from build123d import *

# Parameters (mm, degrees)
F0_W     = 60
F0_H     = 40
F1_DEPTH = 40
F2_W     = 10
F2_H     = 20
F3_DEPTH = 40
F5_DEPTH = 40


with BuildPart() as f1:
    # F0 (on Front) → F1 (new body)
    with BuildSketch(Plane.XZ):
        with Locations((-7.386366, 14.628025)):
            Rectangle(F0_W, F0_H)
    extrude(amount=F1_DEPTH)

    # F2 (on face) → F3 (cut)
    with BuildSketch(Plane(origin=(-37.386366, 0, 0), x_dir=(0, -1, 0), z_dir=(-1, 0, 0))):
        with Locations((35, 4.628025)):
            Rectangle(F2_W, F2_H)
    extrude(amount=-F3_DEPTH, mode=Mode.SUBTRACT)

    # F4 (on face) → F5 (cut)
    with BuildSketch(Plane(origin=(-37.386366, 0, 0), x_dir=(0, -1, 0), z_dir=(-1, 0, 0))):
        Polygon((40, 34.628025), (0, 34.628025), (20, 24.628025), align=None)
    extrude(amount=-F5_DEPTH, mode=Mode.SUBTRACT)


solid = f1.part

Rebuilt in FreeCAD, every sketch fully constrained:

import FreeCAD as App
import Part
import Sketcher

V = App.Vector

doc = App.newDocument("Part")
body = doc.addObject("PartDesign::Body", "Body")

sketch1 = doc.addObject("Sketcher::SketchObject", "Sketch")
body.addObject(sketch1)
sketch1.AttachmentSupport = (doc.XZ_Plane, [""])
sketch1.MapMode = "FlatFace"
sketch1.addGeometry([
    Part.LineSegment(V(-37, 35, 0), V(-37, -5, 0)),
    Part.LineSegment(V(-37, -5, 0), V(23, -5, 0)),
    Part.LineSegment(V(23, -5, 0), V(23, 35, 0)),
    Part.LineSegment(V(23, 35, 0), V(-37, 35, 0)),
], False)
sketch1.addConstraint([
    Sketcher.Constraint("Coincident", 0, 2, 1, 1),
    Sketcher.Constraint("Coincident", 1, 2, 2, 1),
    Sketcher.Constraint("Coincident", 2, 2, 3, 1),
    Sketcher.Constraint("Coincident", 3, 2, 0, 1),
    Sketcher.Constraint("Vertical", 0),
    Sketcher.Constraint("Horizontal", 1),
    Sketcher.Constraint("Vertical", 2),
    Sketcher.Constraint("Horizontal", 3),
    Sketcher.Constraint("DistanceX", 1, 1, 1, 2, 60.0),
    Sketcher.Constraint("DistanceY", 0, 2, 0, 1, 40.0),
    Sketcher.Constraint("DistanceX", 0, 2, -1, 1, 37.386366),
    Sketcher.Constraint("DistanceY", 0, 2, -1, 1, 5.371975),
])
pad1 = doc.addObject("PartDesign::Pad", "Pad")
body.addObject(pad1)
pad1.Profile = sketch1
pad1.Length = 40

sketch2 = doc.addObject("Sketcher::SketchObject", "Sketch001")
body.addObject(sketch2)
sketch2.AttachmentSupport = (doc.YZ_Plane, [""])
sketch2.MapMode = "FlatFace"
sketch2.AttachmentOffset = App.Placement(V(0, 0, -37.386366), App.Rotation())
sketch2.addGeometry([
    Part.LineSegment(V(-30, 15, 0), V(-30, -5, 0)),
    Part.LineSegment(V(-30, -5, 0), V(-40, -5, 0)),
    Part.LineSegment(V(-40, -5, 0), V(-40, 15, 0)),
    Part.LineSegment(V(-40, 15, 0), V(-30, 15, 0)),
], False)
sketch2.addConstraint([
    Sketcher.Constraint("Coincident", 0, 2, 1, 1),
    Sketcher.Constraint("Coincident", 1, 2, 2, 1),
    Sketcher.Constraint("Coincident", 2, 2, 3, 1),
    Sketcher.Constraint("Coincident", 3, 2, 0, 1),
    Sketcher.Constraint("Vertical", 0),
    Sketcher.Constraint("Horizontal", 1),
    Sketcher.Constraint("Vertical", 2),
    Sketcher.Constraint("Horizontal", 3),
    Sketcher.Constraint("DistanceX", 1, 2, 1, 1, 10.0),
    Sketcher.Constraint("DistanceY", 0, 2, 0, 1, 20.0),
    Sketcher.Constraint("DistanceX", 0, 2, -1, 1, 30.0),
    Sketcher.Constraint("DistanceY", 0, 2, -1, 1, 5.371975),
])
pocket1 = doc.addObject("PartDesign::Pocket", "Pocket")
body.addObject(pocket1)
pocket1.Profile = sketch2
pocket1.Length = 40
pocket1.Reversed = True

sketch3 = doc.addObject("Sketcher::SketchObject", "Sketch002")
body.addObject(sketch3)
sketch3.AttachmentSupport = (doc.YZ_Plane, [""])
sketch3.MapMode = "FlatFace"
sketch3.AttachmentOffset = App.Placement(V(0, 0, -37.386366), App.Rotation())
sketch3.addGeometry([
    Part.LineSegment(V(-40, 35, 0), V(0, 35, 0)),
    Part.LineSegment(V(0, 35, 0), V(-20, 25, 0)),
    Part.LineSegment(V(-20, 25, 0), V(-40, 35, 0)),
], False)
sketch3.addConstraint([
    Sketcher.Constraint("Coincident", 0, 2, 1, 1),
    Sketcher.Constraint("Coincident", 1, 2, 2, 1),
    Sketcher.Constraint("Coincident", 2, 2, 0, 1),
    Sketcher.Constraint("Horizontal", 0),
    Sketcher.Constraint("PointOnObject", 0, 2, -2),
    Sketcher.Constraint("Equal", 1, 2),
    Sketcher.Constraint("DistanceX", 0, 1, 0, 2, 40.0),
    Sketcher.Constraint("DistanceY", 1, 2, 0, 2, 10.0),
    Sketcher.Constraint("DistanceY", -1, 1, 0, 2, 34.628025),
])
pocket2 = doc.addObject("PartDesign::Pocket", "Pocket001")
body.addObject(pocket2)
pocket2.Profile = sketch3
pocket2.Length = 40
pocket2.Reversed = True

doc.recompute()
